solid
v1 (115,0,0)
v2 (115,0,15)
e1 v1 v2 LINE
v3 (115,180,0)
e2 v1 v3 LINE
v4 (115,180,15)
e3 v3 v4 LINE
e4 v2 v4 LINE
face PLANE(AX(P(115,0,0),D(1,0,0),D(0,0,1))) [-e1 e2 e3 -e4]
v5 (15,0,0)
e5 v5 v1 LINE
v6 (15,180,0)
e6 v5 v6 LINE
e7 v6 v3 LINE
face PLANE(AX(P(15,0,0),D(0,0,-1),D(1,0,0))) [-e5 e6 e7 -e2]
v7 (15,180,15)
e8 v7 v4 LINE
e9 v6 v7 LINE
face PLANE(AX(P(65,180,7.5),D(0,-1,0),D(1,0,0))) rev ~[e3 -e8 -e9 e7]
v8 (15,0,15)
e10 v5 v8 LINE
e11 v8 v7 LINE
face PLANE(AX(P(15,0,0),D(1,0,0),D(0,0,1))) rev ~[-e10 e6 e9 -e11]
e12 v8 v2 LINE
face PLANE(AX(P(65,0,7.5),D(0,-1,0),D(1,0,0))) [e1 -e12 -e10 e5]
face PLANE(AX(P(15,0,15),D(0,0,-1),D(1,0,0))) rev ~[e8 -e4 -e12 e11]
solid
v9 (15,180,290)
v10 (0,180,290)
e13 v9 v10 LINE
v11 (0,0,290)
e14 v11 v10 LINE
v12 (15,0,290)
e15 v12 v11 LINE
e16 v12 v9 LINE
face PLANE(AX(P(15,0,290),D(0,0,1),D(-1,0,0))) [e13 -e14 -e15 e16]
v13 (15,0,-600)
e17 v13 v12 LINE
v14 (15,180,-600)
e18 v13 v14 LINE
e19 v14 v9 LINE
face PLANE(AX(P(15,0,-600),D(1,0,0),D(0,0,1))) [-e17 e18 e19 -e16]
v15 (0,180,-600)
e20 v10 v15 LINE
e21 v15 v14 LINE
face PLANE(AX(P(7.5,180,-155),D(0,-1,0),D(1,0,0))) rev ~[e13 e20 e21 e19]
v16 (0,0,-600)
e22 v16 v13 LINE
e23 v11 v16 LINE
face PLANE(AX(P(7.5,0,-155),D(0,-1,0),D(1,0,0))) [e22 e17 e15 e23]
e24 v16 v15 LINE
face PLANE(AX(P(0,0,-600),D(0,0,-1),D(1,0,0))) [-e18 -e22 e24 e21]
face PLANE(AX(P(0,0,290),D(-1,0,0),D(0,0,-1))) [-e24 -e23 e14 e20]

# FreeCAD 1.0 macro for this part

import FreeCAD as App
import Part
import Sketcher

V = App.Vector

doc = App.newDocument("Part")
body = doc.addObject("PartDesign::Body", "Body")

# Sketch on XZ plane
sketch1 = body.newObject("Sketcher::SketchObject", "Sketch")
sketch1.AttachmentSupport = (doc.getObject("XZ_Plane"), [""])
sketch1.MapMode = "FlatFace"
sketch1.addGeometry([
    Part.LineSegment(V(15, 290, 0), V(0, 290, 0)),
    Part.LineSegment(V(0, 290, 0), V(0, -600, 0)),
    Part.LineSegment(V(0, -600, 0), V(15, -600, 0)),
    Part.LineSegment(V(15, -600, 0), V(15, 290, 0)),
], False)
sketch1.addConstraint([
    Sketcher.Constraint("Coincident", 0, 2, 1, 1),
    Sketcher.Constraint("Coincident", 1, 2, 2, 1),
    Sketcher.Constraint("Coincident", 2, 2, 3, 1),
    Sketcher.Constraint("Coincident", 3, 2, 0, 1),
    Sketcher.Constraint("Horizontal", 0),
    Sketcher.Constraint("Vertical", 1),
    Sketcher.Constraint("Horizontal", 2),
    Sketcher.Constraint("Vertical", 3),
    Sketcher.Constraint("PointOnObject", 0, 2, -2),
    Sketcher.Constraint("DistanceX", 0, 2, 0, 1, 15.0),
    Sketcher.Constraint("DistanceY", 1, 2, 1, 1, 890.0),
    Sketcher.Constraint("DistanceY", -1, 1, 0, 2, 290.0),
])
pad1 = body.newObject("PartDesign::Pad", "Pad")
pad1.Profile = sketch1
pad1.Length = 180
pad1.Reversed = True
body2 = doc.addObject("PartDesign::Body", "Body001")

# Sketch on XZ plane
sketch2 = body2.newObject("Sketcher::SketchObject", "Sketch001")
sketch2.AttachmentSupport = (doc.getObject("XZ_Plane001"), [""])
sketch2.MapMode = "FlatFace"
sketch2.addGeometry([
    Part.LineSegment(V(15, 15, 0), V(15, 0, 0)),
    Part.LineSegment(V(15, 0, 0), V(115, 0, 0)),
    Part.LineSegment(V(115, 0, 0), V(115, 15, 0)),
    Part.LineSegment(V(115, 15, 0), V(15, 15, 0)),
], False)
sketch2.addConstraint([
    Sketcher.Constraint("Coincident", 0, 2, 1, 1),
    Sketcher.Constraint("Coincident", 1, 2, 2, 1),
    Sketcher.Constraint("Coincident", 2, 2, 3, 1),
    Sketcher.Constraint("Coincident", 3, 2, 0, 1),
    Sketcher.Constraint("Vertical", 0),
    Sketcher.Constraint("Horizontal", 1),
    Sketcher.Constraint("Vertical", 2),
    Sketcher.Constraint("Horizontal", 3),
    Sketcher.Constraint("PointOnObject", 0, 2, -1),
    Sketcher.Constraint("DistanceX", 1, 1, 1, 2, 100.0),
    Sketcher.Constraint("DistanceY", 0, 2, 0, 1, 15.0),
    Sketcher.Constraint("DistanceX", -1, 1, 0, 2, 15.0),
])
pad2 = body2.newObject("PartDesign::Pad", "Pad001")
pad2.Profile = sketch2
pad2.Length = 180
pad2.Reversed = True

doc.recompute()
